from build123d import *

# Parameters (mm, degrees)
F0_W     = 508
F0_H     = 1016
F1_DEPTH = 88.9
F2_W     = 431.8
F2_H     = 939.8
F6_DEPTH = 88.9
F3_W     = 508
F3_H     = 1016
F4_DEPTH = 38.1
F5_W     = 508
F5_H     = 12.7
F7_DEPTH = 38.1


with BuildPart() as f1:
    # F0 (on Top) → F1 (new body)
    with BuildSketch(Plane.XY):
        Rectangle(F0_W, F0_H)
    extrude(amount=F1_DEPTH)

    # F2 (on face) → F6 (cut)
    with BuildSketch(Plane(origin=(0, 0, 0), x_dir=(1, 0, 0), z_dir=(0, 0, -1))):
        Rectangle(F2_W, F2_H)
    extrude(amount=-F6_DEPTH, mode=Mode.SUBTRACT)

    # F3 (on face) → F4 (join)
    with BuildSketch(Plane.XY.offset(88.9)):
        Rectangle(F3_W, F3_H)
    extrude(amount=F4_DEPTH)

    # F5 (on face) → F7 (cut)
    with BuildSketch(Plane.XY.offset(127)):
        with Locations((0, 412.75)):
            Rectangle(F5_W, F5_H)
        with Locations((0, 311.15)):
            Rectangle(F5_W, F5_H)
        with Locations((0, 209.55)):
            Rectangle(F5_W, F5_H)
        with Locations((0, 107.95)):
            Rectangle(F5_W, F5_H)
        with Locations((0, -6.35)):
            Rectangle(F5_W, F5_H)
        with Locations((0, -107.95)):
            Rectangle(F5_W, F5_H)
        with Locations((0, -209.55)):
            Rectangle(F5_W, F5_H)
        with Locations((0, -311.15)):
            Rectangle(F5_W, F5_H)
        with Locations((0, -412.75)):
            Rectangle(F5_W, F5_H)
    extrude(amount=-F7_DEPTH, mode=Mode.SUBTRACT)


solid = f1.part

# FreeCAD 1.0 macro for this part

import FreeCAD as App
import Part
import Sketcher
Q = App.Units.Quantity


def add_polygon(sketch, points):
    """Adds a closed chain of lines whose ends are joined by coincident constraints."""
    first, n = sketch.GeometryCount, len(points)
    for a, b in zip(points, points[1:] + points[:1]):
        sketch.addGeometry(Part.LineSegment(App.Vector(*a, 0), App.Vector(*b, 0)), False)
    for i in range(n):
        sketch.addConstraint(Sketcher.Constraint("Coincident", first + i, 2, first + (i + 1) % n, 1))

doc = App.newDocument("Part")
body = doc.addObject("PartDesign::Body", "Body")

# Sketch on XY plane
sketch1 = body.newObject("Sketcher::SketchObject", "Sketch")
sketch1.AttachmentSupport = (doc.getObject("XY_Plane"), [""])
sketch1.MapMode = "FlatFace"
add_polygon(sketch1, [(-254, 508), (-254, -508), (254, -508), (254, 508)])  # lines 0-3
sketch1.addConstraint([
    Sketcher.Constraint("Vertical", 0),
    Sketcher.Constraint("Horizontal", 1),
    Sketcher.Constraint("Vertical", 2),
    Sketcher.Constraint("Horizontal", 3),
    Sketcher.Constraint("Symmetric", 0, 2, 2, 2, -1, 1),
    Sketcher.Constraint("DistanceX", 1, 1, 1, 2, Q("20 in")),
    Sketcher.Constraint("DistanceY", 0, 2, 0, 1, Q("40 in")),
])
pad1 = body.newObject("PartDesign::Pad", "Pad")
pad1.Profile = sketch1
pad1.Length = Q("3.5 in")

# Sketch on XY plane
sketch2 = body.newObject("Sketcher::SketchObject", "Sketch001")
sketch2.AttachmentSupport = (doc.getObject("XY_Plane"), [""])
sketch2.MapMode = "FlatFace"
add_polygon(sketch2, [(-216, -470), (-216, 470), (216, 470), (216, -470)])  # lines 0-3
sketch2.addConstraint([
    Sketcher.Constraint("Vertical", 0),
    Sketcher.Constraint("Horizontal", 1),
    Sketcher.Constraint("Vertical", 2),
    Sketcher.Constraint("Horizontal", 3),
    Sketcher.Constraint("Symmetric", 0, 2, 2, 2, -1, 1),
    Sketcher.Constraint("DistanceX", 1, 1, 1, 2, Q("17 in")),
    Sketcher.Constraint("DistanceY", 0, 1, 0, 2, Q("37 in")),
])
pocket1 = body.newObject("PartDesign::Pocket", "Pocket")
pocket1.Profile = sketch2
pocket1.Length = Q("3.5 in")
pocket1.Reversed = True

# Sketch on XY plane
sketch3 = body.newObject("Sketcher::SketchObject", "Sketch002")
sketch3.AttachmentSupport = (doc.getObject("XY_Plane"), [""])
sketch3.MapMode = "FlatFace"
sketch3.AttachmentOffset = App.Placement(App.Vector(0, 0, 3.5 * 25.4), App.Rotation())
add_polygon(sketch3, [(-254, 508), (-254, -508), (254, -508), (254, 508)])  # lines 0-3
sketch3.addConstraint([
    Sketcher.Constraint("Vertical", 0),
    Sketcher.Constraint("Horizontal", 1),
    Sketcher.Constraint("Vertical", 2),
    Sketcher.Constraint("Horizontal", 3),
    Sketcher.Constraint("Symmetric", 0, 2, 2, 2, -1, 1),
    Sketcher.Constraint("DistanceX", 1, 1, 1, 2, Q("20 in")),
    Sketcher.Constraint("DistanceY", 0, 2, 0, 1, Q("40 in")),
])
pad2 = body.newObject("PartDesign::Pad", "Pad001")
pad2.Profile = sketch3
pad2.Length = Q("1.5 in")

# Sketch on XY plane
sketch4 = body.newObject("Sketcher::SketchObject", "Sketch003")
sketch4.AttachmentSupport = (doc.getObject("XY_Plane"), [""])
sketch4.MapMode = "FlatFace"
sketch4.AttachmentOffset = App.Placement(App.Vector(0, 0, 5 * 25.4), App.Rotation())
add_polygon(sketch4, [(-254, 419), (-254, 406), (254, 406), (254, 419)])  # lines 0-3
add_polygon(sketch4, [(-254, 318), (-254, 305), (254, 305), (254, 318)])  # lines 4-7
add_polygon(sketch4, [(-254, 216), (-254, 203), (254, 203), (254, 216)])  # lines 8-11
add_polygon(sketch4, [(-254, 114), (-254, 102), (254, 102), (254, 114)])  # lines 12-15
add_polygon(sketch4, [(-254, 0), (-254, -13), (254, -13), (254, 0)])  # lines 16-19
add_polygon(sketch4, [(-254, -102), (-254, -114), (254, -114), (254, -102)])  # lines 20-23
add_polygon(sketch4, [(-254, -203), (-254, -216), (254, -216), (254, -203)])  # lines 24-27
add_polygon(sketch4, [(-254, -305), (-254, -318), (254, -318), (254, -305)])  # lines 28-31
add_polygon(sketch4, [(-254, -406), (-254, -419), (254, -419), (254, -406)])  # lines 32-35
sketch4.addConstraint([
    Sketcher.Constraint("Vertical", 0),
    Sketcher.Constraint("Horizontal", 1),
    Sketcher.Constraint("Vertical", 2),
    Sketcher.Constraint("Horizontal", 3),
    Sketcher.Constraint("Vertical", 4),
    Sketcher.Constraint("Horizontal", 5),
    Sketcher.Constraint("Vertical", 6),
    Sketcher.Constraint("Horizontal", 7),
    Sketcher.Constraint("Vertical", 8),
    Sketcher.Constraint("Horizontal", 9),
    Sketcher.Constraint("Vertical", 10),
    Sketcher.Constraint("Horizontal", 11),
    Sketcher.Constraint("Vertical", 12),
    Sketcher.Constraint("Horizontal", 13),
    Sketcher.Constraint("Vertical", 14),
    Sketcher.Constraint("Horizontal", 15),
    Sketcher.Constraint("Vertical", 16),
    Sketcher.Constraint("Horizontal", 17),
    Sketcher.Constraint("Vertical", 18),
    Sketcher.Constraint("Horizontal", 19),
    Sketcher.Constraint("Vertical", 20),
    Sketcher.Constraint("Horizontal", 21),
    Sketcher.Constraint("Vertical", 22),
    Sketcher.Constraint("Horizontal", 23),
    Sketcher.Constraint("Vertical", 24),
    Sketcher.Constraint("Horizontal", 25),
    Sketcher.Constraint("Vertical", 26),
    Sketcher.Constraint("Horizontal", 27),
    Sketcher.Constraint("Vertical", 28),
    Sketcher.Constraint("Horizontal", 29),
    Sketcher.Constraint("Vertical", 30),
    Sketcher.Constraint("Horizontal", 31),
    Sketcher.Constraint("Vertical", 32),
    Sketcher.Constraint("Horizontal", 33),
    Sketcher.Constraint("Vertical", 34),
    Sketcher.Constraint("Horizontal", 35),
    Sketcher.Constraint("Symmetric", 18, 2, 19, 2, -1, 1),
    Sketcher.Constraint("Symmetric", 14, 2, 20, 2, -1, 1),
    Sketcher.Constraint("Symmetric", 12, 2, 22, 2, -1, 1),
    Sketcher.Constraint("Symmetric", 10, 2, 24, 2, -1, 1),
    Sketcher.Constraint("Symmetric", 8, 2, 26, 2, -1, 1),
    Sketcher.Constraint("Symmetric", 6, 2, 28, 2, -1, 1),
    Sketcher.Constraint("Symmetric", 4, 2, 30, 2, -1, 1),
    Sketcher.Constraint("Symmetric", 2, 2, 32, 2, -1, 1),
    Sketcher.Constraint("Symmetric", 0, 2, 34, 2, -1, 1),
    Sketcher.Constraint("Vertical", 3, 2, 4, 2),
    Sketcher.Constraint("Vertical", 2, 2, 5, 2),
    Sketcher.Constraint("Vertical", 7, 2, 8, 2),
    Sketcher.Constraint("Vertical", 6, 2, 9, 2),
    Sketcher.Constraint("Vertical", 11, 2, 12, 2),
    Sketcher.Constraint("Vertical", 10, 2, 13, 2),
    Sketcher.Constraint("Vertical", 15, 2, 16, 2),
    Sketcher.Constraint("Vertical", 14, 2, 17, 2),
    Sketcher.Constraint("Equal", 2, 4),
    Sketcher.Constraint("Equal", 6, 8),
    Sketcher.Constraint("Equal", 10, 12),
    Sketcher.Constraint("Equal", 14, 16),
    Sketcher.Constraint("DistanceX", 1, 1, 1, 2, Q("20 in")),
    Sketcher.Constraint("DistanceY", 0, 2, 0, 1, Q("0.5 in")),
    Sketcher.Constraint("DistanceY", -1, 1, 0, 2, Q("16 in")),
    Sketcher.Constraint("DistanceY", -1, 1, 4, 2, Q("12 in")),
    Sketcher.Constraint("DistanceY", -1, 1, 8, 2, Q("8 in")),
    Sketcher.Constraint("DistanceY", -1, 1, 12, 2, Q("4 in")),
])
pocket2 = body.newObject("PartDesign::Pocket", "Pocket001")
pocket2.Profile = sketch4
pocket2.Length = Q("1.5 in")

doc.recompute()
